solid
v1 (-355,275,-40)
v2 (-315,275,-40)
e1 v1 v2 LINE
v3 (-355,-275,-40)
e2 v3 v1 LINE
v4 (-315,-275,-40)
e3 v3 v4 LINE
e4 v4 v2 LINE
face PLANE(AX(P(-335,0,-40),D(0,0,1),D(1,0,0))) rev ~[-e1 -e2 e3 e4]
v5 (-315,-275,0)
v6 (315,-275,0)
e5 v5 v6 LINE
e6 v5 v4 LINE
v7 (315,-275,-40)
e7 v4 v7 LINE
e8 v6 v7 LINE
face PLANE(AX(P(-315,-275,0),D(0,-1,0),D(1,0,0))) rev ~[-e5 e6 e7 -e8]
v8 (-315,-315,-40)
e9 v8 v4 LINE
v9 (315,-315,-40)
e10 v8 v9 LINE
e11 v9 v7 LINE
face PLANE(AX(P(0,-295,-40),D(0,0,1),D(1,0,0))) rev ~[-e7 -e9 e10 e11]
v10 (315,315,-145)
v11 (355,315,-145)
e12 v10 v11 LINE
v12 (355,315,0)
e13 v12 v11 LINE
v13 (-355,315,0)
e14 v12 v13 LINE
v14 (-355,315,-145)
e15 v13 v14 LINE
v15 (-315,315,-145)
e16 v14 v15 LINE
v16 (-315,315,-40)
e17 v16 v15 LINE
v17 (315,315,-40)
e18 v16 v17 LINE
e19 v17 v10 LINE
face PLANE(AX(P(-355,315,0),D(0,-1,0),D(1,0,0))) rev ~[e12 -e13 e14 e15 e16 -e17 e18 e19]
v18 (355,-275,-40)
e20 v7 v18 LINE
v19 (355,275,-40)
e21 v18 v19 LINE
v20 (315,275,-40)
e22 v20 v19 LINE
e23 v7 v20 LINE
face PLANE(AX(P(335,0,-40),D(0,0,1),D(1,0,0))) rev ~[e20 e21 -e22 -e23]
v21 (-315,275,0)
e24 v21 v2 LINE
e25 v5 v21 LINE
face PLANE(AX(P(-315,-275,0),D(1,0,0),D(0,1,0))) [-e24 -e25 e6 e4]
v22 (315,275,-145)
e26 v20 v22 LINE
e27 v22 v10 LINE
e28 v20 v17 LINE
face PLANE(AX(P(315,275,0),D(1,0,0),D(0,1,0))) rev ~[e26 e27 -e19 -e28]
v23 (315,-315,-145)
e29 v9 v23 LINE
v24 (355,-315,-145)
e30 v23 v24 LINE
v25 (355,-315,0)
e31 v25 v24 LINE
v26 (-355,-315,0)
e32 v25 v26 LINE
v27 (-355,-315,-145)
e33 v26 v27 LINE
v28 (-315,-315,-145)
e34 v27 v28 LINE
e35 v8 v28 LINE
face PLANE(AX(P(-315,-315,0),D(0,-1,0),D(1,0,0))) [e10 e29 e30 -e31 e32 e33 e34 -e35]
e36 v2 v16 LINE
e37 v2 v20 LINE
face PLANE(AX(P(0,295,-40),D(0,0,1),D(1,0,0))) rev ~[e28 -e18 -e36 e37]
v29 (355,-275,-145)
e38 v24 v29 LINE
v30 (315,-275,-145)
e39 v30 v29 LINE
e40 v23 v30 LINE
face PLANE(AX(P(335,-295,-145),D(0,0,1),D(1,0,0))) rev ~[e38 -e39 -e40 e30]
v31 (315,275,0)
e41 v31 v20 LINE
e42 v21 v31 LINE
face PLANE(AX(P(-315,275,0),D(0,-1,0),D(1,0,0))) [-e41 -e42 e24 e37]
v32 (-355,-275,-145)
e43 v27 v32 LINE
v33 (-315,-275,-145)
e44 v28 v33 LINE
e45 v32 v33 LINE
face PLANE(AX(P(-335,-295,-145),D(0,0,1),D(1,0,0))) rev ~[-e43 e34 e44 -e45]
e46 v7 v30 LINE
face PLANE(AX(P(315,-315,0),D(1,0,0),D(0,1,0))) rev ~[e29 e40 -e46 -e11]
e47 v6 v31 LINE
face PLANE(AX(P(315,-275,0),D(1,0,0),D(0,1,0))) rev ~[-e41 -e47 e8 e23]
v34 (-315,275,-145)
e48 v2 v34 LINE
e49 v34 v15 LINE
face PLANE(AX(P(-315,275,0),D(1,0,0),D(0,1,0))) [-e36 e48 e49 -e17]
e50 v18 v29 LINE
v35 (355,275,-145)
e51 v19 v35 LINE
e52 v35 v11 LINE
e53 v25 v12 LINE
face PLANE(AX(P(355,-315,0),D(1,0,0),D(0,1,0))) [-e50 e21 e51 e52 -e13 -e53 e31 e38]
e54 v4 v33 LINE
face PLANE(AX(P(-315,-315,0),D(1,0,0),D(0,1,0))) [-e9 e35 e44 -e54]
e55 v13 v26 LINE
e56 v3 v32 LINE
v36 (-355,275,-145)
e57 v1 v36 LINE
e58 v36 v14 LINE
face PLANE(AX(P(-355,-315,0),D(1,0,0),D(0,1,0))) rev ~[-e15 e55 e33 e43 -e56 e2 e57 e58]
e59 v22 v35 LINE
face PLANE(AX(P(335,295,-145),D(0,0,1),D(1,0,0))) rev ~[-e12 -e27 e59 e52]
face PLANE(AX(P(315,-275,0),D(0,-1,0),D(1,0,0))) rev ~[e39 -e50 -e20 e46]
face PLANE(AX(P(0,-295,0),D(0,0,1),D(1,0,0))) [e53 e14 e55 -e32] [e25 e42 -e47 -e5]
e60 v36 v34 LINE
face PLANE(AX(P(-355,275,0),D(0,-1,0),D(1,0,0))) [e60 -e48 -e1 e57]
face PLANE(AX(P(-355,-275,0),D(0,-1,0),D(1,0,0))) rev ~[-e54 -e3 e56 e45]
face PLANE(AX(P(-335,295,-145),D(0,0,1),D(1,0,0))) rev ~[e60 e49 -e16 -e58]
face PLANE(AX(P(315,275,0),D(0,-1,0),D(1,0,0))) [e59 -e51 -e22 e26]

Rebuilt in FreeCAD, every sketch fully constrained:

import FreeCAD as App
import Part
import Sketcher
from FreeCAD import Vector
Q = App.Units.Quantity


def add_polygon(sketch, points):
    """Adds a closed chain of lines whose ends are joined by coincident constraints."""
    first, n = sketch.GeometryCount, len(points)
    for a, b in zip(points, points[1:] + points[:1]):
        sketch.addGeometry(Part.LineSegment(App.Vector(*a, 0), App.Vector(*b, 0)), False)
    for i in range(n):
        sketch.addConstraint(Sketcher.Constraint("Coincident", first + i, 2, first + (i + 1) % n, 1))

doc = App.newDocument("Part")
params = doc.addObject("Spreadsheet::Sheet", "Params")
for row, (alias, value) in enumerate([
    ("sketch1_width", "40 mm"),
    ("pad1_length", "145 mm"),
    ("sketch2_width", "40 mm"),
    ("pad2_length", "145 mm"),
    ("sketch3_width", "40 mm"),
    ("pad3_length", "145 mm"),
    ("sketch4_width", "40 mm"),
    ("pad4_length", "145 mm"),
    ("sketch5_width", "630 mm"),
    ("sketch5_width2", "40 mm"),
    ("sketch5_height", "550 mm"),
    ("pad5_length", "40 mm"),
], start=1):
    params.set(f"A{row}", alias)
    params.set(f"B{row}", "=" + value)
    params.setAlias(f"B{row}", alias)

body = doc.addObject("PartDesign::Body", "Body")

# Sketch on XY plane
sketch1 = doc.addObject("Sketcher::SketchObject", "Sketch")
body.addObject(sketch1)
sketch1.AttachmentSupport = (doc.XY_Plane, [""])
sketch1.MapMode = "FlatFace"
add_polygon(sketch1, [(-355, 315), (-355, 275), (-315, 275), (-315, 315)])  # lines 0-3
sketch1.addConstraint(Sketcher.Constraint("Vertical", 0))
sketch1.addConstraint(Sketcher.Constraint("Horizontal", 1))
sketch1.addConstraint(Sketcher.Constraint("Vertical", 2))
sketch1.addConstraint(Sketcher.Constraint("Horizontal", 3))
sketch1.addConstraint(Sketcher.Constraint("Equal", 3, 0))
sketch1.addConstraint(Sketcher.Constraint("DistanceX", 1, 1, 1, 2, Q("40 mm")))
sketch1.addConstraint(Sketcher.Constraint("DistanceX", 0, 2, -1, 1, Q("355 mm")))
sketch1.addConstraint(Sketcher.Constraint("DistanceY", -1, 1, 0, 2, Q("275 mm")))
sketch1.setExpression("Constraints[9]", "Params.sketch1_width")
pad1 = doc.addObject("PartDesign::Pad", "Pad")
body.addObject(pad1)
pad1.Profile = sketch1
pad1.setExpression("Length", "Params.pad1_length")
pad1.Reversed = True
body2 = doc.addObject("PartDesign::Body", "Body001")

# Sketch on XY plane
sketch2 = doc.addObject("Sketcher::SketchObject", "Sketch001")
body2.addObject(sketch2)
sketch2.AttachmentSupport = (doc.getObject("XY_Plane001"), [""])
sketch2.MapMode = "FlatFace"
add_polygon(sketch2, [(315, 315), (315, 275), (355, 275), (355, 315)])  # lines 0-3
sketch2.addConstraint(Sketcher.Constraint("Vertical", 0))
sketch2.addConstraint(Sketcher.Constraint("Horizontal", 1))
sketch2.addConstraint(Sketcher.Constraint("Vertical", 2))
sketch2.addConstraint(Sketcher.Constraint("Horizontal", 3))
sketch2.addConstraint(Sketcher.Constraint("Equal", 3, 0))
sketch2.addConstraint(Sketcher.Constraint("DistanceX", 1, 1, 1, 2, Q("40 mm")))
sketch2.addConstraint(Sketcher.Constraint("DistanceX", -1, 1, 0, 2, Q("315 mm")))
sketch2.addConstraint(Sketcher.Constraint("DistanceY", -1, 1, 0, 2, Q("275 mm")))
sketch2.setExpression("Constraints[9]", "Params.sketch2_width")
pad2 = doc.addObject("PartDesign::Pad", "Pad001")
body2.addObject(pad2)
pad2.Profile = sketch2
pad2.setExpression("Length", "Params.pad2_length")
pad2.Reversed = True
body3 = doc.addObject("PartDesign::Body", "Body002")

# Sketch on XY plane
sketch3 = doc.addObject("Sketcher::SketchObject", "Sketch002")
body3.addObject(sketch3)
sketch3.AttachmentSupport = (doc.getObject("XY_Plane002"), [""])
sketch3.MapMode = "FlatFace"
add_polygon(sketch3, [(315, -275), (315, -315), (355, -315), (355, -275)])  # lines 0-3
sketch3.addConstraint(Sketcher.Constraint("Vertical", 0))
sketch3.addConstraint(Sketcher.Constraint("Horizontal", 1))
sketch3.addConstraint(Sketcher.Constraint("Vertical", 2))
sketch3.addConstraint(Sketcher.Constraint("Horizontal", 3))
sketch3.addConstraint(Sketcher.Constraint("Equal", 3, 0))
sketch3.addConstraint(Sketcher.Constraint("DistanceX", 1, 1, 1, 2, Q("40 mm")))
sketch3.addConstraint(Sketcher.Constraint("DistanceX", -1, 1, 0, 2, Q("315 mm")))
sketch3.addConstraint(Sketcher.Constraint("DistanceY", 0, 2, -1, 1, Q("315 mm")))
sketch3.setExpression("Constraints[9]", "Params.sketch3_width")
pad3 = doc.addObject("PartDesign::Pad", "Pad002")
body3.addObject(pad3)
pad3.Profile = sketch3
pad3.setExpression("Length", "Params.pad3_length")
pad3.Reversed = True
body4 = doc.addObject("PartDesign::Body", "Body003")

# Sketch on XY plane
sketch4 = doc.addObject("Sketcher::SketchObject", "Sketch003")
body4.addObject(sketch4)
sketch4.AttachmentSupport = (doc.getObject("XY_Plane003"), [""])
sketch4.MapMode = "FlatFace"
add_polygon(sketch4, [(-355, -275), (-355, -315), (-315, -315), (-315, -275)])  # lines 0-3
sketch4.addConstraint(Sketcher.Constraint("Vertical", 0))
sketch4.addConstraint(Sketcher.Constraint("Horizontal", 1))
sketch4.addConstraint(Sketcher.Constraint("Vertical", 2))
sketch4.addConstraint(Sketcher.Constraint("Horizontal", 3))
sketch4.addConstraint(Sketcher.Constraint("Equal", 3, 0))
sketch4.addConstraint(Sketcher.Constraint("DistanceX", 1, 1, 1, 2, Q("40 mm")))
sketch4.addConstraint(Sketcher.Constraint("DistanceX", 0, 2, -1, 1, Q("355 mm")))
sketch4.addConstraint(Sketcher.Constraint("DistanceY", 0, 2, -1, 1, Q("315 mm")))
sketch4.setExpression("Constraints[9]", "Params.sketch4_width")
pad4 = doc.addObject("PartDesign::Pad", "Pad003")
body4.addObject(pad4)
pad4.Profile = sketch4
pad4.setExpression("Length", "Params.pad4_length")
pad4.Reversed = True
body.AllowCompound = True
doc.recompute()

boolean = doc.addObject("PartDesign::Boolean", "Boolean")
body.addObject(boolean)
boolean.Type = "Fuse"
boolean.addObjects([body2])
doc.recompute()

boolean2 = doc.addObject("PartDesign::Boolean", "Boolean001")
body.addObject(boolean2)
boolean2.Type = "Fuse"
boolean2.addObjects([body3])
doc.recompute()

boolean3 = doc.addObject("PartDesign::Boolean", "Boolean002")
body.addObject(boolean3)
boolean3.Type = "Fuse"
boolean3.addObjects([body4])

# Sketch on XY plane
sketch5 = doc.addObject("Sketcher::SketchObject", "Sketch004")
body.addObject(sketch5)
sketch5.AttachmentSupport = (doc.XY_Plane, [""])
sketch5.MapMode = "FlatFace"
add_polygon(sketch5, [(-315, -275), (-315, -315), (315, -315), (315, -275)])  # lines 0-3
add_polygon(sketch5, [(315, 275), (315, -275), (355, -275), (355, 275)])  # lines 4-7
add_polygon(sketch5, [(-315, 315), (-315, 275), (315, 275), (315, 315)])  # lines 8-11
add_polygon(sketch5, [(-355, 275), (-355, -275), (-315, -275), (-315, 275)])  # lines 12-15
sketch5.addConstraint(Sketcher.Constraint("Vertical", 0))
sketch5.addConstraint(Sketcher.Constraint("Horizontal", 1))
sketch5.addConstraint(Sketcher.Constraint("Vertical", 2))
sketch5.addConstraint(Sketcher.Constraint("Horizontal", 3))
sketch5.addConstraint(Sketcher.Constraint("Vertical", 4))
sketch5.addConstraint(Sketcher.Constraint("Horizontal", 5))
sketch5.addConstraint(Sketcher.Constraint("Vertical", 6))
sketch5.addConstraint(Sketcher.Constraint("Horizontal", 7))
sketch5.addConstraint(Sketcher.Constraint("Vertical", 8))
sketch5.addConstraint(Sketcher.Constraint("Horizontal", 9))
sketch5.addConstraint(Sketcher.Constraint("Vertical", 10))
sketch5.addConstraint(Sketcher.Constraint("Horizontal", 11))
sketch5.addConstraint(Sketcher.Constraint("Vertical", 12))
sketch5.addConstraint(Sketcher.Constraint("Horizontal", 13))
sketch5.addConstraint(Sketcher.Constraint("Vertical", 14))
sketch5.addConstraint(Sketcher.Constraint("Horizontal", 15))
sketch5.addConstraint(Sketcher.Constraint("Coincident", 4, 2, 2, 2))
sketch5.addConstraint(Sketcher.Constraint("Coincident", 9, 2, 7, 2))
sketch5.addConstraint(Sketcher.Constraint("Coincident", 13, 2, 3, 2))
sketch5.addConstraint(Sketcher.Constraint("Coincident", 14, 2, 8, 2))
sketch5.addConstraint(Sketcher.Constraint("Symmetric", 3, 2, 7, 2, -1, 1))
sketch5.addConstraint(Sketcher.Constraint("Equal", 7, 13))
sketch5.addConstraint(Sketcher.Constraint("Equal", 15, 0))
sketch5.addConstraint(Sketcher.Constraint("Equal", 2, 8))
sketch5.addConstraint(Sketcher.Constraint("DistanceX", 1, 1, 1, 2, Q("630 mm")))
sketch5.addConstraint(Sketcher.Constraint("DistanceX", 5, 1, 5, 2, Q("40 mm")))
sketch5.addConstraint(Sketcher.Constraint("DistanceY", 4, 2, 4, 1, Q("550 mm")))
sketch5.setExpression("Constraints[40]", "Params.sketch5_width")
sketch5.setExpression("Constraints[41]", "Params.sketch5_width2")
sketch5.setExpression("Constraints[42]", "Params.sketch5_height")
pad5 = doc.addObject("PartDesign::Pad", "Pad004")
body.addObject(pad5)
pad5.Profile = sketch5
pad5.setExpression("Length", "Params.pad5_length")
pad5.Reversed = True

doc.recompute()
